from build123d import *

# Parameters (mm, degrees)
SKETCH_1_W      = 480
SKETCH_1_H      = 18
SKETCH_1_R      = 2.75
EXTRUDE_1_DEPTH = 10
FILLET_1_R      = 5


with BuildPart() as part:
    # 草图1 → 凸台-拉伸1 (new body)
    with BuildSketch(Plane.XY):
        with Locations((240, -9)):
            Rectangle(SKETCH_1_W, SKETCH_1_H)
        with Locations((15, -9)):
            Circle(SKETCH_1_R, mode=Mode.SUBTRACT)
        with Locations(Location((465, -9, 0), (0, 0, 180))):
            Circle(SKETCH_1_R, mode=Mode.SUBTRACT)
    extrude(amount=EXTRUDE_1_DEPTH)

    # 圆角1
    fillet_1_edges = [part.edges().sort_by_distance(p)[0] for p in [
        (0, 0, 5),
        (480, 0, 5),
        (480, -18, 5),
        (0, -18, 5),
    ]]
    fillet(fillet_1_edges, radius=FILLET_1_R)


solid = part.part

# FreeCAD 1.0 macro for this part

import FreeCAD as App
import Part
import Sketcher
Q = App.Units.Quantity


def edges_at(feature, points):
    """Names of the edges that pass closest to the given points."""
    edges = feature.Shape.Edges
    near = lambda p: min(range(len(edges)), key=lambda i: edges[i].distToShape(Part.Vertex(*p))[0])
    return sorted({f"Edge{near(p) + 1}" for p in points})

doc = App.newDocument("Part")
body = doc.addObject("PartDesign::Body", "Body")

# Sketch on XY plane
sketch1 = body.newObject("Sketcher::SketchObject", "Sketch")
sketch1.AttachmentSupport = (doc.getObject("XY_Plane"), [""])
sketch1.MapMode = "FlatFace"
sketch1.addGeometry([
    Part.LineSegment(App.Vector(0, 0, 0), App.Vector(0, -18, 0)),  # 0
    Part.LineSegment(App.Vector(0, -18, 0), App.Vector(480, -18, 0)),  # 1
    Part.LineSegment(App.Vector(480, -18, 0), App.Vector(480, 0, 0)),  # 2
    Part.LineSegment(App.Vector(480, 0, 0), App.Vector(0, 0, 0)),  # 3
    Part.Circle(App.Vector(15, -9, 0), App.Vector(0, 0, 1), 2.8),  # 4
    Part.Circle(App.Vector(465, -9, 0), App.Vector(0, 0, 1), 2.8),  # 5
], False)
sketch1.addConstraint([
    Sketcher.Constraint("Coincident", 0, 2, 1, 1),
    Sketcher.Constraint("Coincident", 1, 2, 2, 1),
    Sketcher.Constraint("Coincident", 2, 2, 3, 1),
    Sketcher.Constraint("Coincident", 3, 2, 0, 1),
    Sketcher.Constraint("Vertical", 0),
    Sketcher.Constraint("Horizontal", 1),
    Sketcher.Constraint("Vertical", 2),
    Sketcher.Constraint("Horizontal", 3),
    Sketcher.Constraint("Coincident", 3, 2, -1, 1),
    Sketcher.Constraint("Equal", 4, 5),
    Sketcher.Constraint("Horizontal", 4, 3, 5, 3),
    Sketcher.Constraint("Diameter", 4, Q("5.5 mm")),
    Sketcher.Constraint("DistanceX", 1, 1, 1, 2, Q("480 mm")),
    Sketcher.Constraint("DistanceY", 0, 2, 0, 1, Q("18 mm")),
    Sketcher.Constraint("DistanceX", -1, 1, 4, 3, Q("15 mm")),
    Sketcher.Constraint("DistanceY", 4, 3, -1, 1, Q("9 mm")),
    Sketcher.Constraint("DistanceX", -1, 1, 5, 3, Q("465 mm")),
])
pad1 = body.newObject("PartDesign::Pad", "Pad")
pad1.Profile = sketch1
pad1.Length = 10
doc.recompute()

fillet = body.newObject("PartDesign::Fillet", "Fillet")
fillet.Base = (pad1, edges_at(pad1, [
    (0, 0, 5),
    (480, 0, 5),
    (480, -18, 5),
    (0, -18, 5),
]))
fillet.Radius = 5

doc.recompute()
